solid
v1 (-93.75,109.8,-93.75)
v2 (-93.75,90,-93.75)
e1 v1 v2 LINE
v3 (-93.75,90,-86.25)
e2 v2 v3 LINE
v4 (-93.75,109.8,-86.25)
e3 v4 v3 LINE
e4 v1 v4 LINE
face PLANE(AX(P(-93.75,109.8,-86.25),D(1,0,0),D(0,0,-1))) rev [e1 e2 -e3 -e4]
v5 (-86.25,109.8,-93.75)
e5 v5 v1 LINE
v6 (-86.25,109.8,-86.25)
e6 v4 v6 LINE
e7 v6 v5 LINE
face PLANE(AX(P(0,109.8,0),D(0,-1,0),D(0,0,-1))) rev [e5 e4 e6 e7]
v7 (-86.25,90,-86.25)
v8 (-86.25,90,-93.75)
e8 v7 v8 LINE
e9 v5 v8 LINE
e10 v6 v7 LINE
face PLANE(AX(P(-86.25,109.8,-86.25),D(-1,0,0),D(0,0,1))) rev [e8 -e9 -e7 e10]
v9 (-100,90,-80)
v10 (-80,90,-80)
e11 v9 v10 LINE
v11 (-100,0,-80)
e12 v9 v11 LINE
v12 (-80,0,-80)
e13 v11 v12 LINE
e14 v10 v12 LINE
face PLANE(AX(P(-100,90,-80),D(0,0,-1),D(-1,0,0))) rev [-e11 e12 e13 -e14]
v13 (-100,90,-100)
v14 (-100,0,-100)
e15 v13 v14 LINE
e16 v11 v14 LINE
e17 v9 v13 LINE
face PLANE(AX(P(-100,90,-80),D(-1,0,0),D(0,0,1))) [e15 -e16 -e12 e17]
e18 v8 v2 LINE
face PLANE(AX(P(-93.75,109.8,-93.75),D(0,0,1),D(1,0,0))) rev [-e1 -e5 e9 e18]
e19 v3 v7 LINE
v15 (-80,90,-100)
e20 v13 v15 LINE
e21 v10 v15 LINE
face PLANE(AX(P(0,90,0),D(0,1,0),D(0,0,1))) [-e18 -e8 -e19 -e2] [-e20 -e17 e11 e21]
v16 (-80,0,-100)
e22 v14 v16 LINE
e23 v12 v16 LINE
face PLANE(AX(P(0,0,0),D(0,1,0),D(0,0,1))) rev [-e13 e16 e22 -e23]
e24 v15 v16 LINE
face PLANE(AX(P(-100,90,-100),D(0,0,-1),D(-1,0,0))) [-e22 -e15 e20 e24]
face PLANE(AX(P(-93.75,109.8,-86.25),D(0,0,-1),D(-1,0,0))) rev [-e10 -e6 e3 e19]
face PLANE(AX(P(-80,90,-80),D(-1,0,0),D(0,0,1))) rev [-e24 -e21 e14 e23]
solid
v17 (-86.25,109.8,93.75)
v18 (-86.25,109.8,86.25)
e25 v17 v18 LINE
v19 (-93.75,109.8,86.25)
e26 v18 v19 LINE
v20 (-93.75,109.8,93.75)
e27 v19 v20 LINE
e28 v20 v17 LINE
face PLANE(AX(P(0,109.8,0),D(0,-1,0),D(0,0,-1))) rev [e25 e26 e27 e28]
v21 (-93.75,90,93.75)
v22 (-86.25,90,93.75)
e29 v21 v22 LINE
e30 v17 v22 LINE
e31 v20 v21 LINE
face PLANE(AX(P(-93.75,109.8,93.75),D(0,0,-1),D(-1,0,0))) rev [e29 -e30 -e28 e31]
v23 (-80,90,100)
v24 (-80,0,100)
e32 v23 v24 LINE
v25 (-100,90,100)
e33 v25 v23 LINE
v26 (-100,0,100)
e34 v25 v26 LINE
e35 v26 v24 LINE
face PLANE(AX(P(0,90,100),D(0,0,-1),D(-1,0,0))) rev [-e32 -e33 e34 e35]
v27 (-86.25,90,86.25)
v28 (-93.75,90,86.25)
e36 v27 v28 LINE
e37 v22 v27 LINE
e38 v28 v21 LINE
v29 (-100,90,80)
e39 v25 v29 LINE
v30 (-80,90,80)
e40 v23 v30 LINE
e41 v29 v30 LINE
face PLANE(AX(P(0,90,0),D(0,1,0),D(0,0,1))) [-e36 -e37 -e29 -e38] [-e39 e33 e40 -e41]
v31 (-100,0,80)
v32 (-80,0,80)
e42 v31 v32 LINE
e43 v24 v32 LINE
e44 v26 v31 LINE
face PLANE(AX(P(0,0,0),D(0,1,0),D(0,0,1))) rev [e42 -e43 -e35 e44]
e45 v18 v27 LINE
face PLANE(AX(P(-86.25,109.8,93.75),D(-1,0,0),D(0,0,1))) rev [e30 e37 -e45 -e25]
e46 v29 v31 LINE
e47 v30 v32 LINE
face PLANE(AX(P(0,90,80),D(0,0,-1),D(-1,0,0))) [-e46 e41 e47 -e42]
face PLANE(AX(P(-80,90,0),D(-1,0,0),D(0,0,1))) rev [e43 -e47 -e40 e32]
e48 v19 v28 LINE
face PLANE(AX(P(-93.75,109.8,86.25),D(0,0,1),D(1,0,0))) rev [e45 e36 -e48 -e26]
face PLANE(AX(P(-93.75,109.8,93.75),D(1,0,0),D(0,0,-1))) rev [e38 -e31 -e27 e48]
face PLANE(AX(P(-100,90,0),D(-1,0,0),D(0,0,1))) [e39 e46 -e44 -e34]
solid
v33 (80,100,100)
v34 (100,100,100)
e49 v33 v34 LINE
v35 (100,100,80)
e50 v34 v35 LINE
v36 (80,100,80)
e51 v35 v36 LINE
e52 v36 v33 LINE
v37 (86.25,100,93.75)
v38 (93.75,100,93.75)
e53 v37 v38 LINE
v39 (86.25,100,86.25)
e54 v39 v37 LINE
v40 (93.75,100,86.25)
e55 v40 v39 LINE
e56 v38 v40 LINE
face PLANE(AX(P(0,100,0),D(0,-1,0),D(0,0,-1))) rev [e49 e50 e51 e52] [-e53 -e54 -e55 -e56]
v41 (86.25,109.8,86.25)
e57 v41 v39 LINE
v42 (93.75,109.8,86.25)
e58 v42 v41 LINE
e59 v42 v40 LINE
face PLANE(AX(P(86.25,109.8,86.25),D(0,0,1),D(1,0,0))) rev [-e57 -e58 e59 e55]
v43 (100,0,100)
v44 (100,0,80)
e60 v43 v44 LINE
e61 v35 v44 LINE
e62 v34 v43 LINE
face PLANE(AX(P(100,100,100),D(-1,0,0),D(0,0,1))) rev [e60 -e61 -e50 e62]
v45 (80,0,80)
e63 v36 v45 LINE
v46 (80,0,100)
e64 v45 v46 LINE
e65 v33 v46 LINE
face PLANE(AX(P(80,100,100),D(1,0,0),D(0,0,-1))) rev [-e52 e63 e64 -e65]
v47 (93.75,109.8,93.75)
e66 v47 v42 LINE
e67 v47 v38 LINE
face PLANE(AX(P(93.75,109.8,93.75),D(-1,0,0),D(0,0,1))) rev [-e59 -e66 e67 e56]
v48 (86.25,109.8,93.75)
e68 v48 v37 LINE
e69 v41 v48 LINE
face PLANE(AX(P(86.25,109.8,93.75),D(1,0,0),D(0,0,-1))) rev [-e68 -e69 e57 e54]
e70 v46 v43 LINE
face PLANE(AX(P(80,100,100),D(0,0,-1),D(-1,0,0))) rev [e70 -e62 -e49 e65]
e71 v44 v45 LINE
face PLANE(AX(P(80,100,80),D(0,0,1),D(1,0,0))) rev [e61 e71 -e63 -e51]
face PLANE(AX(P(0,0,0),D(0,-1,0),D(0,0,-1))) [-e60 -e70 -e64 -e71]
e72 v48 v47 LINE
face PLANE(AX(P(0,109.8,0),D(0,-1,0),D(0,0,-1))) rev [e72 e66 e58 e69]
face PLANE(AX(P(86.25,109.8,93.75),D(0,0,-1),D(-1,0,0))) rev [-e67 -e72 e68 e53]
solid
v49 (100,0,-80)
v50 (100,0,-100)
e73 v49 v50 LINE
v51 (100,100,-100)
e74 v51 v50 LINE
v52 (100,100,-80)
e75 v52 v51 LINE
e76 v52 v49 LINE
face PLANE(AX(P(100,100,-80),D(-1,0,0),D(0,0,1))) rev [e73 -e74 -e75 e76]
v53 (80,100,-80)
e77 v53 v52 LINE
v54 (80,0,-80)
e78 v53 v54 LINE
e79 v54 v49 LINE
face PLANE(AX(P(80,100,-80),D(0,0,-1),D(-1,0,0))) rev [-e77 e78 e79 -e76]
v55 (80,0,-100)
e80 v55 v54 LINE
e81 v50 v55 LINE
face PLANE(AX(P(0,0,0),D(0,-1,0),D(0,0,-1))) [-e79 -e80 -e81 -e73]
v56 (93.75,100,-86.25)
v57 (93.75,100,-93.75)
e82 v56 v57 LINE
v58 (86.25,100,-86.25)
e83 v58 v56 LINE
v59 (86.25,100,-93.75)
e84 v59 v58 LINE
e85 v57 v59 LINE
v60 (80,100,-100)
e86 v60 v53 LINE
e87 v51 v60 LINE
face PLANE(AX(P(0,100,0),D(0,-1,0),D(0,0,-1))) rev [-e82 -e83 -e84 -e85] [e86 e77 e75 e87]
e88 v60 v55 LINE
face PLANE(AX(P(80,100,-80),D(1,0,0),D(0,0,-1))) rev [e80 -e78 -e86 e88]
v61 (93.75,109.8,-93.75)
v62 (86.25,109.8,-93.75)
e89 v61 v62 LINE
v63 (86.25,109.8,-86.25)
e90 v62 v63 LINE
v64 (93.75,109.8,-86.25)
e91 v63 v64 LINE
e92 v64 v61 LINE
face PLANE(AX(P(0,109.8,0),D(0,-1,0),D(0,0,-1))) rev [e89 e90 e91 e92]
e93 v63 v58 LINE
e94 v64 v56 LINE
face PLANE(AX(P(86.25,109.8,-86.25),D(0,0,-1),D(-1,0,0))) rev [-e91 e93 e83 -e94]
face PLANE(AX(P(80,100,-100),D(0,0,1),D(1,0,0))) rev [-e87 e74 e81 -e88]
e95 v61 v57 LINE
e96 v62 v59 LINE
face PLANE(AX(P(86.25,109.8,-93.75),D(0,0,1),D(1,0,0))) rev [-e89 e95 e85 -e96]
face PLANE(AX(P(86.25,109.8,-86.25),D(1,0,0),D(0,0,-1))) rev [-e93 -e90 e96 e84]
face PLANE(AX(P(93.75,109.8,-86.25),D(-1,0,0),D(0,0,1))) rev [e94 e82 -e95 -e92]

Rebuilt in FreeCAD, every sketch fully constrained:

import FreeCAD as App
import Part
import Sketcher
from FreeCAD import Vector


def add_polygon(sketch, points):
    """Adds a closed chain of lines whose ends are joined by coincident constraints."""
    first, n = sketch.GeometryCount, len(points)
    for a, b in zip(points, points[1:] + points[:1]):
        sketch.addGeometry(Part.LineSegment(App.Vector(*a, 0), App.Vector(*b, 0)), False)
    for i in range(n):
        sketch.addConstraint(Sketcher.Constraint("Coincident", first + i, 2, first + (i + 1) % n, 1))

doc = App.newDocument("Part")
body = doc.addObject("PartDesign::Body", "Body")

# Sketch on XZ plane
sketch1 = doc.addObject("Sketcher::SketchObject", "Sketch")
body.addObject(sketch1)
sketch1.AttachmentSupport = (doc.XZ_Plane, [""])
sketch1.MapMode = "FlatFace"
add_polygon(sketch1, [(-100, 80), (-100, 100), (-80, 100), (-80, 80)])  # lines 0-3
sketch1.addConstraint([
    Sketcher.Constraint("Vertical", 0),
    Sketcher.Constraint("Horizontal", 1),
    Sketcher.Constraint("Vertical", 2),
    Sketcher.Constraint("Horizontal", 3),
    Sketcher.Constraint("Equal", 3, 0),
    Sketcher.Constraint("DistanceX", 1, 1, 1, 2, 20.0),
    Sketcher.Constraint("DistanceX", 0, 2, -1, 1, 100.0),
    Sketcher.Constraint("DistanceY", -1, 1, 0, 2, 100.0),
])
pad1 = doc.addObject("PartDesign::Pad", "Pad")
body.addObject(pad1)
pad1.Profile = sketch1
pad1.Length = 90
pad1.Reversed = True
body2 = doc.addObject("PartDesign::Body", "Body001")

# Sketch on XZ plane
sketch2 = doc.addObject("Sketcher::SketchObject", "Sketch001")
body2.addObject(sketch2)
sketch2.AttachmentSupport = (doc.getObject("XZ_Plane001"), [""])
sketch2.MapMode = "FlatFace"
add_polygon(sketch2, [(-100, -100), (-100, -80), (-80, -80), (-80, -100)])  # lines 0-3
sketch2.addConstraint([
    Sketcher.Constraint("Vertical", 0),
    Sketcher.Constraint("Horizontal", 1),
    Sketcher.Constraint("Vertical", 2),
    Sketcher.Constraint("Horizontal", 3),
    Sketcher.Constraint("Equal", 3, 0),
    Sketcher.Constraint("DistanceX", 1, 1, 1, 2, 20.0),
    Sketcher.Constraint("DistanceX", 0, 2, -1, 1, 100.0),
    Sketcher.Constraint("DistanceY", 0, 2, -1, 1, 80.0),
])
pad2 = doc.addObject("PartDesign::Pad", "Pad001")
body2.addObject(pad2)
pad2.Profile = sketch2
pad2.Length = 90
pad2.Reversed = True
body3 = doc.addObject("PartDesign::Body", "Body002")

# Sketch on XZ plane
sketch3 = doc.addObject("Sketcher::SketchObject", "Sketch002")
body3.addObject(sketch3)
sketch3.AttachmentSupport = (doc.getObject("XZ_Plane002"), [""])
sketch3.MapMode = "FlatFace"
add_polygon(sketch3, [(80, 80), (80, 100), (100, 100), (100, 80)])  # lines 0-3
sketch3.addConstraint([
    Sketcher.Constraint("Vertical", 0),
    Sketcher.Constraint("Horizontal", 1),
    Sketcher.Constraint("Vertical", 2),
    Sketcher.Constraint("Horizontal", 3),
    Sketcher.Constraint("Equal", 3, 0),
    Sketcher.Constraint("DistanceX", 1, 1, 1, 2, 20.0),
    Sketcher.Constraint("DistanceX", -1, 1, 0, 2, 80.0),
    Sketcher.Constraint("DistanceY", -1, 1, 0, 2, 100.0),
])
pad3 = doc.addObject("PartDesign::Pad", "Pad002")
body3.addObject(pad3)
pad3.Profile = sketch3
pad3.Length = 100
pad3.Reversed = True
body4 = doc.addObject("PartDesign::Body", "Body003")

# Sketch on XZ plane
sketch4 = doc.addObject("Sketcher::SketchObject", "Sketch003")
body4.addObject(sketch4)
sketch4.AttachmentSupport = (doc.getObject("XZ_Plane003"), [""])
sketch4.MapMode = "FlatFace"
add_polygon(sketch4, [(80, -100), (80, -80), (100, -80), (100, -100)])  # lines 0-3
sketch4.addConstraint([
    Sketcher.Constraint("Vertical", 0),
    Sketcher.Constraint("Horizontal", 1),
    Sketcher.Constraint("Vertical", 2),
    Sketcher.Constraint("Horizontal", 3),
    Sketcher.Constraint("Equal", 3, 0),
    Sketcher.Constraint("DistanceX", 1, 1, 1, 2, 20.0),
    Sketcher.Constraint("DistanceX", -1, 1, 0, 2, 80.0),
    Sketcher.Constraint("DistanceY", 0, 2, -1, 1, 80.0),
])
pad4 = doc.addObject("PartDesign::Pad", "Pad003")
body4.addObject(pad4)
pad4.Profile = sketch4
pad4.Length = 100
pad4.Reversed = True
body3.AllowCompound = True
doc.recompute()

boolean = doc.addObject("PartDesign::Boolean", "Boolean")
body3.addObject(boolean)
boolean.Type = "Fuse"
boolean.addObjects([body4])

# Sketch on XZ plane
sketch5 = doc.addObject("Sketcher::SketchObject", "Sketch004")
body3.addObject(sketch5)
sketch5.AttachmentSupport = (doc.getObject("XZ_Plane002"), [""])
sketch5.MapMode = "FlatFace"
sketch5.AttachmentOffset = App.Placement(Vector(0, 0, -100), App.Rotation())
add_polygon(sketch5, [(86.25, 86.25), (86.25, 93.75), (93.75, 93.75), (93.75, 86.25)])  # lines 0-3
add_polygon(sketch5, [(86.25, -93.75), (86.25, -86.25), (93.75, -86.25), (93.75, -93.75)])  # lines 4-7
sketch5.addConstraint([
    Sketcher.Constraint("Vertical", 0),
    Sketcher.Constraint("Horizontal", 1),
    Sketcher.Constraint("Vertical", 2),
    Sketcher.Constraint("Horizontal", 3),
    Sketcher.Constraint("Vertical", 4),
    Sketcher.Constraint("Horizontal", 5),
    Sketcher.Constraint("Vertical", 6),
    Sketcher.Constraint("Horizontal", 7),
    Sketcher.Constraint("Symmetric", 3, 2, 4, 2, -1),
    Sketcher.Constraint("Symmetric", 1, 2, 6, 2, -1),
    Sketcher.Constraint("Equal", 7, 0),
    Sketcher.Constraint("DistanceX", 1, 1, 1, 2, 7.5),
    Sketcher.Constraint("DistanceY", 4, 2, 0, 2, 180.0),
    Sketcher.Constraint("DistanceX", -1, 1, 0, 2, 86.25),
])
pad5 = doc.addObject("PartDesign::Pad", "Pad004")
body3.addObject(pad5)
pad5.Profile = sketch5
pad5.Length = 9.8
pad5.Reversed = True
body.AllowCompound = True
doc.recompute()

boolean2 = doc.addObject("PartDesign::Boolean", "Boolean001")
body.addObject(boolean2)
boolean2.Type = "Fuse"
boolean2.addObjects([body2])

# Sketch on XZ plane
sketch6 = doc.addObject("Sketcher::SketchObject", "Sketch005")
body.addObject(sketch6)
sketch6.AttachmentSupport = (doc.XZ_Plane, [""])
sketch6.MapMode = "FlatFace"
sketch6.AttachmentOffset = App.Placement(Vector(0, 0, -90), App.Rotation())
add_polygon(sketch6, [(-93.75, 86.25), (-93.75, 93.75), (-86.25, 93.75), (-86.25, 86.25)])  # lines 0-3
add_polygon(sketch6, [(-93.75, -93.75), (-93.75, -86.25), (-86.25, -86.25), (-86.25, -93.75)])  # lines 4-7
sketch6.addConstraint([
    Sketcher.Constraint("Vertical", 0),
    Sketcher.Constraint("Horizontal", 1),
    Sketcher.Constraint("Vertical", 2),
    Sketcher.Constraint("Horizontal", 3),
    Sketcher.Constraint("Vertical", 4),
    Sketcher.Constraint("Horizontal", 5),
    Sketcher.Constraint("Vertical", 6),
    Sketcher.Constraint("Horizontal", 7),
    Sketcher.Constraint("Symmetric", 3, 2, 4, 2, -1),
    Sketcher.Constraint("Symmetric", 1, 2, 6, 2, -1),
    Sketcher.Constraint("Equal", 7, 0),
    Sketcher.Constraint("DistanceX", 1, 1, 1, 2, 7.5),
    Sketcher.Constraint("DistanceY", 4, 2, 0, 2, 180.0),
    Sketcher.Constraint("DistanceX", 0, 2, -1, 1, 93.75),
])
pad6 = doc.addObject("PartDesign::Pad", "Pad005")
body.addObject(pad6)
pad6.Profile = sketch6
pad6.Length = 19.8
pad6.Reversed = True

doc.recompute()
